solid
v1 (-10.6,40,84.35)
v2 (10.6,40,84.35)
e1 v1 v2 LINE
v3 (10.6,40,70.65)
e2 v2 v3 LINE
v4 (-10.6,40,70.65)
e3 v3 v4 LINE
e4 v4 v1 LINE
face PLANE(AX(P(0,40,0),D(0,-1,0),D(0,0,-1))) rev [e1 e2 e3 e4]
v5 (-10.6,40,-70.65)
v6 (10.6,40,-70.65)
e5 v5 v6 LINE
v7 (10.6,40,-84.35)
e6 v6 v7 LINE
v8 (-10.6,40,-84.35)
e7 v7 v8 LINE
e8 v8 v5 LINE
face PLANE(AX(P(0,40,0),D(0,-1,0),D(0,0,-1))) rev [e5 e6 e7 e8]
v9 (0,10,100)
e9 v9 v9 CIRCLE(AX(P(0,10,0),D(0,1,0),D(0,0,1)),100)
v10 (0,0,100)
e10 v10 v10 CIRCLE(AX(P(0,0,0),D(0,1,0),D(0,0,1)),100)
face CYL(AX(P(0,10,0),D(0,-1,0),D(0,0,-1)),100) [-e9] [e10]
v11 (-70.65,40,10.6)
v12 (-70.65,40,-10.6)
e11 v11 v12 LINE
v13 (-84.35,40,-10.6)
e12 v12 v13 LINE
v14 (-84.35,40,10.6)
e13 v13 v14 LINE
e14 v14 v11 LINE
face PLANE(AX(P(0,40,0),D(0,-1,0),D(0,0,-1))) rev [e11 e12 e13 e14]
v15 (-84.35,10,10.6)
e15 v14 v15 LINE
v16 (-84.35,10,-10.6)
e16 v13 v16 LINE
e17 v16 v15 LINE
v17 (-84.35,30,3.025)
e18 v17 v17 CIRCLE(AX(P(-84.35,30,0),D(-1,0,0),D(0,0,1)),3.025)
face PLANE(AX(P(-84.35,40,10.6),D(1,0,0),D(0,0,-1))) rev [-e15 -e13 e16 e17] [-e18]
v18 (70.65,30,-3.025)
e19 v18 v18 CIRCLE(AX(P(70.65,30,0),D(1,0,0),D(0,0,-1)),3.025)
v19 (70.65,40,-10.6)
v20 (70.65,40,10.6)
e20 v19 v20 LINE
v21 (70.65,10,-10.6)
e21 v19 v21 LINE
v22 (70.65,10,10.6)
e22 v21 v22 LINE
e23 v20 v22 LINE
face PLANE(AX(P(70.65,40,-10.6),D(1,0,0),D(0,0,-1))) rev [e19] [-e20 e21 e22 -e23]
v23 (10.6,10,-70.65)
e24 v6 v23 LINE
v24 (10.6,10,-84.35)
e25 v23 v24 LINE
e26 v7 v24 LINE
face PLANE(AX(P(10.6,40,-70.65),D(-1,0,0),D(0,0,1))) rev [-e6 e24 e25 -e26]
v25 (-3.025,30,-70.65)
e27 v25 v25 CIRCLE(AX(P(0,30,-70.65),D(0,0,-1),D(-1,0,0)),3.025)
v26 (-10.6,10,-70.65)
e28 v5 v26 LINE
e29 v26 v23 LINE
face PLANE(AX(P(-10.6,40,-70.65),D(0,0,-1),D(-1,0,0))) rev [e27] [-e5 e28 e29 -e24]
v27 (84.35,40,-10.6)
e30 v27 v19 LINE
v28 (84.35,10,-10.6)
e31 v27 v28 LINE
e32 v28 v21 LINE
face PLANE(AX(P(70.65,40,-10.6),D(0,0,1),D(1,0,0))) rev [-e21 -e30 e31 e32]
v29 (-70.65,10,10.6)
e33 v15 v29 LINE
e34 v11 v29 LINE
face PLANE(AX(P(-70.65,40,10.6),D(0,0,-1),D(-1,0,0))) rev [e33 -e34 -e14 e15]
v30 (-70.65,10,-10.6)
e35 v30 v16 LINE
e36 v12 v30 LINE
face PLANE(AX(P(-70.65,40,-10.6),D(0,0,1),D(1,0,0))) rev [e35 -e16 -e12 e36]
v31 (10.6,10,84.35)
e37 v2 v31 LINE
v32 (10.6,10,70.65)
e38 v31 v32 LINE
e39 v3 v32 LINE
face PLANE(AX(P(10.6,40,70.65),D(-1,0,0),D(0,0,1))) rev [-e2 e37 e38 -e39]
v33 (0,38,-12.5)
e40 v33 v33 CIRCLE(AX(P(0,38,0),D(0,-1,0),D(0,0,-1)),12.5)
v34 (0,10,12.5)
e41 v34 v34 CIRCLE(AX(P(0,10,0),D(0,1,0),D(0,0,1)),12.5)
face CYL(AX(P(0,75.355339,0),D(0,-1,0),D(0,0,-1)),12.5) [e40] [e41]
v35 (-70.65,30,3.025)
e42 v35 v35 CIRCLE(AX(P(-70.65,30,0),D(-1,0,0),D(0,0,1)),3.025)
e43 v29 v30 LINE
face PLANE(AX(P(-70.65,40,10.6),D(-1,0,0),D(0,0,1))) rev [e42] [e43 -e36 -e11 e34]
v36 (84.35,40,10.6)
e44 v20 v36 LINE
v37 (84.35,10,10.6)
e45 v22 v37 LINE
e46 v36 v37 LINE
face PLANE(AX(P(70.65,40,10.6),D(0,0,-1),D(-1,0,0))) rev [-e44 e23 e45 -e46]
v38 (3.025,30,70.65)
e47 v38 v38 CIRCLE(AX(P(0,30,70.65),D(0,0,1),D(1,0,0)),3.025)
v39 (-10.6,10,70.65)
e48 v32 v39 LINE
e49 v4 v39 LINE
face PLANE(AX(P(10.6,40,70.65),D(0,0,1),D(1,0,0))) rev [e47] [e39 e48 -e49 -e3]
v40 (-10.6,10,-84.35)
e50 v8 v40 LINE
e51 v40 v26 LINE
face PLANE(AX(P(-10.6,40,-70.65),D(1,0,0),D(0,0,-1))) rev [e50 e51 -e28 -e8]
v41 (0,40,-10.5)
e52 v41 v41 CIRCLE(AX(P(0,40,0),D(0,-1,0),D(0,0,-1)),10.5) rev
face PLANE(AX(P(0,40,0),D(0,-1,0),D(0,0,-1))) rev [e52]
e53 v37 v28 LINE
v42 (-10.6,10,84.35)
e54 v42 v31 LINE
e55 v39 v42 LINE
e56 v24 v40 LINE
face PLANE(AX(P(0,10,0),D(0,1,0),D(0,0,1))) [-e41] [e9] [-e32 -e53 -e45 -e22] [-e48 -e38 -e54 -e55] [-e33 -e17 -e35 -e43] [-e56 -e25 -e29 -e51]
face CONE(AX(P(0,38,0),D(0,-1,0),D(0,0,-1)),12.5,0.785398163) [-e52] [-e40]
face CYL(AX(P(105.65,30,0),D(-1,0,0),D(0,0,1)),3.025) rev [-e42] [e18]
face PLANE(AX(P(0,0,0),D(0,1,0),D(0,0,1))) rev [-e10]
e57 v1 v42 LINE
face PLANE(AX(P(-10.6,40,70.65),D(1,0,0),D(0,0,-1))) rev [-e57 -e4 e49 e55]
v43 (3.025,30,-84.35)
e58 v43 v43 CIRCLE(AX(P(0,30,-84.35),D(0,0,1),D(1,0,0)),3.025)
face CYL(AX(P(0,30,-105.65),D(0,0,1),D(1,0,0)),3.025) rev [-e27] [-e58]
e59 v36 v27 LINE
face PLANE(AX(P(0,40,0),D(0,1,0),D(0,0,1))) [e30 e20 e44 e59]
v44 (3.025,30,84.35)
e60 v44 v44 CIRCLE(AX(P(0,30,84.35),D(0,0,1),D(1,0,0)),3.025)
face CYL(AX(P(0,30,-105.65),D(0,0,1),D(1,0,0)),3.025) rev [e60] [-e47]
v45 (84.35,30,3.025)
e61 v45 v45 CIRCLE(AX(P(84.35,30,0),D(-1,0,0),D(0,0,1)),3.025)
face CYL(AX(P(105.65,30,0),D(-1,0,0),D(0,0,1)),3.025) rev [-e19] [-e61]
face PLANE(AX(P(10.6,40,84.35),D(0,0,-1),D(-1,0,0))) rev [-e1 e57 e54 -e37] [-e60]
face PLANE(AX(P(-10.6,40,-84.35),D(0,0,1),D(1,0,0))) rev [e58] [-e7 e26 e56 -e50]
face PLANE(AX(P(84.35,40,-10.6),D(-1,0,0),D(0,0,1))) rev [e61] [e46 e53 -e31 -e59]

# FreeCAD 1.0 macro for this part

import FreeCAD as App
import Part
import Sketcher
from FreeCAD import Vector


def edges_at(feature, points):
    """Names of the edges that pass closest to the given points."""
    edges = feature.Shape.Edges
    near = lambda p: min(range(len(edges)), key=lambda i: edges[i].distToShape(Part.Vertex(*p))[0])
    return sorted({f"Edge{near(p) + 1}" for p in points})

doc = App.newDocument("Part")
body = doc.addObject("PartDesign::Body", "Body")

sketch1 = doc.addObject("Sketcher::SketchObject", "Sketch")
body.addObject(sketch1)
sketch1.AttachmentSupport = (doc.XZ_Plane, [""])
sketch1.MapMode = "FlatFace"
sketch1.addGeometry(Part.Circle(Vector(0, 0, 0), Vector(0, 0, 1), 100), False)
sketch1.addConstraint([
    Sketcher.Constraint("Coincident", 0, 3, -1, 1),
    Sketcher.Constraint("Diameter", 0, 200.0),
])
pad1 = doc.addObject("PartDesign::Pad", "Pad")
body.addObject(pad1)
pad1.Profile = sketch1
pad1.Length = 10
pad1.Reversed = True

sketch2 = doc.addObject("Sketcher::SketchObject", "Sketch001")
body.addObject(sketch2)
sketch2.AttachmentSupport = (doc.XZ_Plane, [""])
sketch2.MapMode = "FlatFace"
sketch2.AttachmentOffset = App.Placement(Vector(0, 0, -10), App.Rotation())
sketch2.addGeometry([
    Part.LineSegment(Vector(-11, 71, 0), Vector(-11, 84, 0)),
    Part.LineSegment(Vector(-11, 84, 0), Vector(11, 84, 0)),
    Part.LineSegment(Vector(11, 84, 0), Vector(11, 71, 0)),
    Part.LineSegment(Vector(11, 71, 0), Vector(-11, 71, 0)),
    Part.LineSegment(Vector(71, -11, 0), Vector(71, 11, 0)),
    Part.LineSegment(Vector(71, 11, 0), Vector(84, 11, 0)),
    Part.LineSegment(Vector(84, 11, 0), Vector(84, -11, 0)),
    Part.LineSegment(Vector(84, -11, 0), Vector(71, -11, 0)),
    Part.LineSegment(Vector(-84, -11, 0), Vector(-84, 11, 0)),
    Part.LineSegment(Vector(-84, 11, 0), Vector(-71, 11, 0)),
    Part.LineSegment(Vector(-71, 11, 0), Vector(-71, -11, 0)),
    Part.LineSegment(Vector(-71, -11, 0), Vector(-84, -11, 0)),
    Part.LineSegment(Vector(-11, -84, 0), Vector(-11, -71, 0)),
    Part.LineSegment(Vector(-11, -71, 0), Vector(11, -71, 0)),
    Part.LineSegment(Vector(11, -71, 0), Vector(11, -84, 0)),
    Part.LineSegment(Vector(11, -84, 0), Vector(-11, -84, 0)),
], False)
sketch2.addConstraint([
    Sketcher.Constraint("Coincident", 0, 2, 1, 1),
    Sketcher.Constraint("Coincident", 1, 2, 2, 1),
    Sketcher.Constraint("Coincident", 2, 2, 3, 1),
    Sketcher.Constraint("Coincident", 3, 2, 0, 1),
    Sketcher.Constraint("Coincident", 4, 2, 5, 1),
    Sketcher.Constraint("Coincident", 5, 2, 6, 1),
    Sketcher.Constraint("Coincident", 6, 2, 7, 1),
    Sketcher.Constraint("Coincident", 7, 2, 4, 1),
    Sketcher.Constraint("Coincident", 8, 2, 9, 1),
    Sketcher.Constraint("Coincident", 9, 2, 10, 1),
    Sketcher.Constraint("Coincident", 10, 2, 11, 1),
    Sketcher.Constraint("Coincident", 11, 2, 8, 1),
    Sketcher.Constraint("Coincident", 12, 2, 13, 1),
    Sketcher.Constraint("Coincident", 13, 2, 14, 1),
    Sketcher.Constraint("Coincident", 14, 2, 15, 1),
    Sketcher.Constraint("Coincident", 15, 2, 12, 1),
    Sketcher.Constraint("Vertical", 0),
    Sketcher.Constraint("Horizontal", 1),
    Sketcher.Constraint("Vertical", 2),
    Sketcher.Constraint("Horizontal", 3),
    Sketcher.Constraint("Vertical", 4),
    Sketcher.Constraint("Horizontal", 5),
    Sketcher.Constraint("Vertical", 6),
    Sketcher.Constraint("Horizontal", 7),
    Sketcher.Constraint("Vertical", 8),
    Sketcher.Constraint("Horizontal", 9),
    Sketcher.Constraint("Vertical", 10),
    Sketcher.Constraint("Horizontal", 11),
    Sketcher.Constraint("Vertical", 12),
    Sketcher.Constraint("Horizontal", 13),
    Sketcher.Constraint("Vertical", 14),
    Sketcher.Constraint("Horizontal", 15),
    Sketcher.Constraint("Symmetric", 6, 2, 8, 2, -1, 1),
    Sketcher.Constraint("Symmetric", 4, 2, 10, 2, -1, 1),
    Sketcher.Constraint("Symmetric", 2, 2, 12, 2, -1, 1),
    Sketcher.Constraint("Symmetric", 0, 2, 14, 2, -1, 1),
    Sketcher.Constraint("Horizontal", 5, 2, 8, 2),
    Sketcher.Constraint("Vertical", 3, 2, 12, 2),
    Sketcher.Constraint("Equal", 11, 0),
    Sketcher.Constraint("Equal", 15, 4),
    Sketcher.Constraint("DistanceX", 1, 1, 1, 2, 21.2),
    Sketcher.Constraint("DistanceX", 5, 1, 5, 2, 13.7),
    Sketcher.Constraint("DistanceX", 8, 2, 4, 2, 155.0),
    Sketcher.Constraint("DistanceY", -1, 1, 0, 2, 84.35),
])
pad2 = doc.addObject("PartDesign::Pad", "Pad001")
body.addObject(pad2)
pad2.Profile = sketch2
pad2.Length = 30
pad2.Reversed = True

sketch3 = doc.addObject("Sketcher::SketchObject", "Sketch002")
body.addObject(sketch3)
sketch3.AttachmentSupport = (doc.YZ_Plane, [""])
sketch3.MapMode = "FlatFace"
sketch3.AttachmentOffset = App.Placement(Vector(0, 0, -84.35), App.Rotation())
sketch3.addGeometry(Part.Circle(Vector(30, 0, 0), Vector(0, 0, 1), 3), False)
sketch3.addConstraint([
    Sketcher.Constraint("PointOnObject", 0, 3, -1),
    Sketcher.Constraint("Diameter", 0, 6.05),
    Sketcher.Constraint("DistanceX", -1, 1, 0, 3, 30.0),
])
pocket1 = doc.addObject("PartDesign::Pocket", "Pocket")
body.addObject(pocket1)
pocket1.Profile = sketch3
pocket1.Length = 190
pocket1.Reversed = True

sketch4 = doc.addObject("Sketcher::SketchObject", "Sketch003")
body.addObject(sketch4)
sketch4.AttachmentSupport = (doc.XY_Plane, [""])
sketch4.MapMode = "FlatFace"
sketch4.AttachmentOffset = App.Placement(Vector(0, 0, 84.35), App.Rotation())
sketch4.addGeometry(Part.Circle(Vector(0, 30, 0), Vector(0, 0, 1), 3), False)
sketch4.addConstraint([
    Sketcher.Constraint("PointOnObject", 0, 3, -2),
    Sketcher.Constraint("Diameter", 0, 6.05),
    Sketcher.Constraint("DistanceY", -1, 1, 0, 3, 30.0),
])
pocket2 = doc.addObject("PartDesign::Pocket", "Pocket001")
body.addObject(pocket2)
pocket2.Profile = sketch4
pocket2.Length = 190

sketch5 = doc.addObject("Sketcher::SketchObject", "Sketch004")
body.addObject(sketch5)
sketch5.AttachmentSupport = (doc.XZ_Plane, [""])
sketch5.MapMode = "FlatFace"
sketch5.AttachmentOffset = App.Placement(Vector(0, 0, -10), App.Rotation())
sketch5.addGeometry(Part.Circle(Vector(0, 0, 0), Vector(0, 0, 1), 12), False)
sketch5.addConstraint([
    Sketcher.Constraint("Coincident", 0, 3, -1, 1),
    Sketcher.Constraint("Diameter", 0, 25.0),
])
pad3 = doc.addObject("PartDesign::Pad", "Pad002")
body.addObject(pad3)
pad3.Profile = sketch5
pad3.Length = 30
pad3.Reversed = True
doc.recompute()

chamfer = doc.addObject("PartDesign::Chamfer", "Chamfer")
body.addObject(chamfer)
chamfer.Base = (pad3, edges_at(pad3, [(0, 40, 12.5)]))
chamfer.Size = 2

doc.recompute()
